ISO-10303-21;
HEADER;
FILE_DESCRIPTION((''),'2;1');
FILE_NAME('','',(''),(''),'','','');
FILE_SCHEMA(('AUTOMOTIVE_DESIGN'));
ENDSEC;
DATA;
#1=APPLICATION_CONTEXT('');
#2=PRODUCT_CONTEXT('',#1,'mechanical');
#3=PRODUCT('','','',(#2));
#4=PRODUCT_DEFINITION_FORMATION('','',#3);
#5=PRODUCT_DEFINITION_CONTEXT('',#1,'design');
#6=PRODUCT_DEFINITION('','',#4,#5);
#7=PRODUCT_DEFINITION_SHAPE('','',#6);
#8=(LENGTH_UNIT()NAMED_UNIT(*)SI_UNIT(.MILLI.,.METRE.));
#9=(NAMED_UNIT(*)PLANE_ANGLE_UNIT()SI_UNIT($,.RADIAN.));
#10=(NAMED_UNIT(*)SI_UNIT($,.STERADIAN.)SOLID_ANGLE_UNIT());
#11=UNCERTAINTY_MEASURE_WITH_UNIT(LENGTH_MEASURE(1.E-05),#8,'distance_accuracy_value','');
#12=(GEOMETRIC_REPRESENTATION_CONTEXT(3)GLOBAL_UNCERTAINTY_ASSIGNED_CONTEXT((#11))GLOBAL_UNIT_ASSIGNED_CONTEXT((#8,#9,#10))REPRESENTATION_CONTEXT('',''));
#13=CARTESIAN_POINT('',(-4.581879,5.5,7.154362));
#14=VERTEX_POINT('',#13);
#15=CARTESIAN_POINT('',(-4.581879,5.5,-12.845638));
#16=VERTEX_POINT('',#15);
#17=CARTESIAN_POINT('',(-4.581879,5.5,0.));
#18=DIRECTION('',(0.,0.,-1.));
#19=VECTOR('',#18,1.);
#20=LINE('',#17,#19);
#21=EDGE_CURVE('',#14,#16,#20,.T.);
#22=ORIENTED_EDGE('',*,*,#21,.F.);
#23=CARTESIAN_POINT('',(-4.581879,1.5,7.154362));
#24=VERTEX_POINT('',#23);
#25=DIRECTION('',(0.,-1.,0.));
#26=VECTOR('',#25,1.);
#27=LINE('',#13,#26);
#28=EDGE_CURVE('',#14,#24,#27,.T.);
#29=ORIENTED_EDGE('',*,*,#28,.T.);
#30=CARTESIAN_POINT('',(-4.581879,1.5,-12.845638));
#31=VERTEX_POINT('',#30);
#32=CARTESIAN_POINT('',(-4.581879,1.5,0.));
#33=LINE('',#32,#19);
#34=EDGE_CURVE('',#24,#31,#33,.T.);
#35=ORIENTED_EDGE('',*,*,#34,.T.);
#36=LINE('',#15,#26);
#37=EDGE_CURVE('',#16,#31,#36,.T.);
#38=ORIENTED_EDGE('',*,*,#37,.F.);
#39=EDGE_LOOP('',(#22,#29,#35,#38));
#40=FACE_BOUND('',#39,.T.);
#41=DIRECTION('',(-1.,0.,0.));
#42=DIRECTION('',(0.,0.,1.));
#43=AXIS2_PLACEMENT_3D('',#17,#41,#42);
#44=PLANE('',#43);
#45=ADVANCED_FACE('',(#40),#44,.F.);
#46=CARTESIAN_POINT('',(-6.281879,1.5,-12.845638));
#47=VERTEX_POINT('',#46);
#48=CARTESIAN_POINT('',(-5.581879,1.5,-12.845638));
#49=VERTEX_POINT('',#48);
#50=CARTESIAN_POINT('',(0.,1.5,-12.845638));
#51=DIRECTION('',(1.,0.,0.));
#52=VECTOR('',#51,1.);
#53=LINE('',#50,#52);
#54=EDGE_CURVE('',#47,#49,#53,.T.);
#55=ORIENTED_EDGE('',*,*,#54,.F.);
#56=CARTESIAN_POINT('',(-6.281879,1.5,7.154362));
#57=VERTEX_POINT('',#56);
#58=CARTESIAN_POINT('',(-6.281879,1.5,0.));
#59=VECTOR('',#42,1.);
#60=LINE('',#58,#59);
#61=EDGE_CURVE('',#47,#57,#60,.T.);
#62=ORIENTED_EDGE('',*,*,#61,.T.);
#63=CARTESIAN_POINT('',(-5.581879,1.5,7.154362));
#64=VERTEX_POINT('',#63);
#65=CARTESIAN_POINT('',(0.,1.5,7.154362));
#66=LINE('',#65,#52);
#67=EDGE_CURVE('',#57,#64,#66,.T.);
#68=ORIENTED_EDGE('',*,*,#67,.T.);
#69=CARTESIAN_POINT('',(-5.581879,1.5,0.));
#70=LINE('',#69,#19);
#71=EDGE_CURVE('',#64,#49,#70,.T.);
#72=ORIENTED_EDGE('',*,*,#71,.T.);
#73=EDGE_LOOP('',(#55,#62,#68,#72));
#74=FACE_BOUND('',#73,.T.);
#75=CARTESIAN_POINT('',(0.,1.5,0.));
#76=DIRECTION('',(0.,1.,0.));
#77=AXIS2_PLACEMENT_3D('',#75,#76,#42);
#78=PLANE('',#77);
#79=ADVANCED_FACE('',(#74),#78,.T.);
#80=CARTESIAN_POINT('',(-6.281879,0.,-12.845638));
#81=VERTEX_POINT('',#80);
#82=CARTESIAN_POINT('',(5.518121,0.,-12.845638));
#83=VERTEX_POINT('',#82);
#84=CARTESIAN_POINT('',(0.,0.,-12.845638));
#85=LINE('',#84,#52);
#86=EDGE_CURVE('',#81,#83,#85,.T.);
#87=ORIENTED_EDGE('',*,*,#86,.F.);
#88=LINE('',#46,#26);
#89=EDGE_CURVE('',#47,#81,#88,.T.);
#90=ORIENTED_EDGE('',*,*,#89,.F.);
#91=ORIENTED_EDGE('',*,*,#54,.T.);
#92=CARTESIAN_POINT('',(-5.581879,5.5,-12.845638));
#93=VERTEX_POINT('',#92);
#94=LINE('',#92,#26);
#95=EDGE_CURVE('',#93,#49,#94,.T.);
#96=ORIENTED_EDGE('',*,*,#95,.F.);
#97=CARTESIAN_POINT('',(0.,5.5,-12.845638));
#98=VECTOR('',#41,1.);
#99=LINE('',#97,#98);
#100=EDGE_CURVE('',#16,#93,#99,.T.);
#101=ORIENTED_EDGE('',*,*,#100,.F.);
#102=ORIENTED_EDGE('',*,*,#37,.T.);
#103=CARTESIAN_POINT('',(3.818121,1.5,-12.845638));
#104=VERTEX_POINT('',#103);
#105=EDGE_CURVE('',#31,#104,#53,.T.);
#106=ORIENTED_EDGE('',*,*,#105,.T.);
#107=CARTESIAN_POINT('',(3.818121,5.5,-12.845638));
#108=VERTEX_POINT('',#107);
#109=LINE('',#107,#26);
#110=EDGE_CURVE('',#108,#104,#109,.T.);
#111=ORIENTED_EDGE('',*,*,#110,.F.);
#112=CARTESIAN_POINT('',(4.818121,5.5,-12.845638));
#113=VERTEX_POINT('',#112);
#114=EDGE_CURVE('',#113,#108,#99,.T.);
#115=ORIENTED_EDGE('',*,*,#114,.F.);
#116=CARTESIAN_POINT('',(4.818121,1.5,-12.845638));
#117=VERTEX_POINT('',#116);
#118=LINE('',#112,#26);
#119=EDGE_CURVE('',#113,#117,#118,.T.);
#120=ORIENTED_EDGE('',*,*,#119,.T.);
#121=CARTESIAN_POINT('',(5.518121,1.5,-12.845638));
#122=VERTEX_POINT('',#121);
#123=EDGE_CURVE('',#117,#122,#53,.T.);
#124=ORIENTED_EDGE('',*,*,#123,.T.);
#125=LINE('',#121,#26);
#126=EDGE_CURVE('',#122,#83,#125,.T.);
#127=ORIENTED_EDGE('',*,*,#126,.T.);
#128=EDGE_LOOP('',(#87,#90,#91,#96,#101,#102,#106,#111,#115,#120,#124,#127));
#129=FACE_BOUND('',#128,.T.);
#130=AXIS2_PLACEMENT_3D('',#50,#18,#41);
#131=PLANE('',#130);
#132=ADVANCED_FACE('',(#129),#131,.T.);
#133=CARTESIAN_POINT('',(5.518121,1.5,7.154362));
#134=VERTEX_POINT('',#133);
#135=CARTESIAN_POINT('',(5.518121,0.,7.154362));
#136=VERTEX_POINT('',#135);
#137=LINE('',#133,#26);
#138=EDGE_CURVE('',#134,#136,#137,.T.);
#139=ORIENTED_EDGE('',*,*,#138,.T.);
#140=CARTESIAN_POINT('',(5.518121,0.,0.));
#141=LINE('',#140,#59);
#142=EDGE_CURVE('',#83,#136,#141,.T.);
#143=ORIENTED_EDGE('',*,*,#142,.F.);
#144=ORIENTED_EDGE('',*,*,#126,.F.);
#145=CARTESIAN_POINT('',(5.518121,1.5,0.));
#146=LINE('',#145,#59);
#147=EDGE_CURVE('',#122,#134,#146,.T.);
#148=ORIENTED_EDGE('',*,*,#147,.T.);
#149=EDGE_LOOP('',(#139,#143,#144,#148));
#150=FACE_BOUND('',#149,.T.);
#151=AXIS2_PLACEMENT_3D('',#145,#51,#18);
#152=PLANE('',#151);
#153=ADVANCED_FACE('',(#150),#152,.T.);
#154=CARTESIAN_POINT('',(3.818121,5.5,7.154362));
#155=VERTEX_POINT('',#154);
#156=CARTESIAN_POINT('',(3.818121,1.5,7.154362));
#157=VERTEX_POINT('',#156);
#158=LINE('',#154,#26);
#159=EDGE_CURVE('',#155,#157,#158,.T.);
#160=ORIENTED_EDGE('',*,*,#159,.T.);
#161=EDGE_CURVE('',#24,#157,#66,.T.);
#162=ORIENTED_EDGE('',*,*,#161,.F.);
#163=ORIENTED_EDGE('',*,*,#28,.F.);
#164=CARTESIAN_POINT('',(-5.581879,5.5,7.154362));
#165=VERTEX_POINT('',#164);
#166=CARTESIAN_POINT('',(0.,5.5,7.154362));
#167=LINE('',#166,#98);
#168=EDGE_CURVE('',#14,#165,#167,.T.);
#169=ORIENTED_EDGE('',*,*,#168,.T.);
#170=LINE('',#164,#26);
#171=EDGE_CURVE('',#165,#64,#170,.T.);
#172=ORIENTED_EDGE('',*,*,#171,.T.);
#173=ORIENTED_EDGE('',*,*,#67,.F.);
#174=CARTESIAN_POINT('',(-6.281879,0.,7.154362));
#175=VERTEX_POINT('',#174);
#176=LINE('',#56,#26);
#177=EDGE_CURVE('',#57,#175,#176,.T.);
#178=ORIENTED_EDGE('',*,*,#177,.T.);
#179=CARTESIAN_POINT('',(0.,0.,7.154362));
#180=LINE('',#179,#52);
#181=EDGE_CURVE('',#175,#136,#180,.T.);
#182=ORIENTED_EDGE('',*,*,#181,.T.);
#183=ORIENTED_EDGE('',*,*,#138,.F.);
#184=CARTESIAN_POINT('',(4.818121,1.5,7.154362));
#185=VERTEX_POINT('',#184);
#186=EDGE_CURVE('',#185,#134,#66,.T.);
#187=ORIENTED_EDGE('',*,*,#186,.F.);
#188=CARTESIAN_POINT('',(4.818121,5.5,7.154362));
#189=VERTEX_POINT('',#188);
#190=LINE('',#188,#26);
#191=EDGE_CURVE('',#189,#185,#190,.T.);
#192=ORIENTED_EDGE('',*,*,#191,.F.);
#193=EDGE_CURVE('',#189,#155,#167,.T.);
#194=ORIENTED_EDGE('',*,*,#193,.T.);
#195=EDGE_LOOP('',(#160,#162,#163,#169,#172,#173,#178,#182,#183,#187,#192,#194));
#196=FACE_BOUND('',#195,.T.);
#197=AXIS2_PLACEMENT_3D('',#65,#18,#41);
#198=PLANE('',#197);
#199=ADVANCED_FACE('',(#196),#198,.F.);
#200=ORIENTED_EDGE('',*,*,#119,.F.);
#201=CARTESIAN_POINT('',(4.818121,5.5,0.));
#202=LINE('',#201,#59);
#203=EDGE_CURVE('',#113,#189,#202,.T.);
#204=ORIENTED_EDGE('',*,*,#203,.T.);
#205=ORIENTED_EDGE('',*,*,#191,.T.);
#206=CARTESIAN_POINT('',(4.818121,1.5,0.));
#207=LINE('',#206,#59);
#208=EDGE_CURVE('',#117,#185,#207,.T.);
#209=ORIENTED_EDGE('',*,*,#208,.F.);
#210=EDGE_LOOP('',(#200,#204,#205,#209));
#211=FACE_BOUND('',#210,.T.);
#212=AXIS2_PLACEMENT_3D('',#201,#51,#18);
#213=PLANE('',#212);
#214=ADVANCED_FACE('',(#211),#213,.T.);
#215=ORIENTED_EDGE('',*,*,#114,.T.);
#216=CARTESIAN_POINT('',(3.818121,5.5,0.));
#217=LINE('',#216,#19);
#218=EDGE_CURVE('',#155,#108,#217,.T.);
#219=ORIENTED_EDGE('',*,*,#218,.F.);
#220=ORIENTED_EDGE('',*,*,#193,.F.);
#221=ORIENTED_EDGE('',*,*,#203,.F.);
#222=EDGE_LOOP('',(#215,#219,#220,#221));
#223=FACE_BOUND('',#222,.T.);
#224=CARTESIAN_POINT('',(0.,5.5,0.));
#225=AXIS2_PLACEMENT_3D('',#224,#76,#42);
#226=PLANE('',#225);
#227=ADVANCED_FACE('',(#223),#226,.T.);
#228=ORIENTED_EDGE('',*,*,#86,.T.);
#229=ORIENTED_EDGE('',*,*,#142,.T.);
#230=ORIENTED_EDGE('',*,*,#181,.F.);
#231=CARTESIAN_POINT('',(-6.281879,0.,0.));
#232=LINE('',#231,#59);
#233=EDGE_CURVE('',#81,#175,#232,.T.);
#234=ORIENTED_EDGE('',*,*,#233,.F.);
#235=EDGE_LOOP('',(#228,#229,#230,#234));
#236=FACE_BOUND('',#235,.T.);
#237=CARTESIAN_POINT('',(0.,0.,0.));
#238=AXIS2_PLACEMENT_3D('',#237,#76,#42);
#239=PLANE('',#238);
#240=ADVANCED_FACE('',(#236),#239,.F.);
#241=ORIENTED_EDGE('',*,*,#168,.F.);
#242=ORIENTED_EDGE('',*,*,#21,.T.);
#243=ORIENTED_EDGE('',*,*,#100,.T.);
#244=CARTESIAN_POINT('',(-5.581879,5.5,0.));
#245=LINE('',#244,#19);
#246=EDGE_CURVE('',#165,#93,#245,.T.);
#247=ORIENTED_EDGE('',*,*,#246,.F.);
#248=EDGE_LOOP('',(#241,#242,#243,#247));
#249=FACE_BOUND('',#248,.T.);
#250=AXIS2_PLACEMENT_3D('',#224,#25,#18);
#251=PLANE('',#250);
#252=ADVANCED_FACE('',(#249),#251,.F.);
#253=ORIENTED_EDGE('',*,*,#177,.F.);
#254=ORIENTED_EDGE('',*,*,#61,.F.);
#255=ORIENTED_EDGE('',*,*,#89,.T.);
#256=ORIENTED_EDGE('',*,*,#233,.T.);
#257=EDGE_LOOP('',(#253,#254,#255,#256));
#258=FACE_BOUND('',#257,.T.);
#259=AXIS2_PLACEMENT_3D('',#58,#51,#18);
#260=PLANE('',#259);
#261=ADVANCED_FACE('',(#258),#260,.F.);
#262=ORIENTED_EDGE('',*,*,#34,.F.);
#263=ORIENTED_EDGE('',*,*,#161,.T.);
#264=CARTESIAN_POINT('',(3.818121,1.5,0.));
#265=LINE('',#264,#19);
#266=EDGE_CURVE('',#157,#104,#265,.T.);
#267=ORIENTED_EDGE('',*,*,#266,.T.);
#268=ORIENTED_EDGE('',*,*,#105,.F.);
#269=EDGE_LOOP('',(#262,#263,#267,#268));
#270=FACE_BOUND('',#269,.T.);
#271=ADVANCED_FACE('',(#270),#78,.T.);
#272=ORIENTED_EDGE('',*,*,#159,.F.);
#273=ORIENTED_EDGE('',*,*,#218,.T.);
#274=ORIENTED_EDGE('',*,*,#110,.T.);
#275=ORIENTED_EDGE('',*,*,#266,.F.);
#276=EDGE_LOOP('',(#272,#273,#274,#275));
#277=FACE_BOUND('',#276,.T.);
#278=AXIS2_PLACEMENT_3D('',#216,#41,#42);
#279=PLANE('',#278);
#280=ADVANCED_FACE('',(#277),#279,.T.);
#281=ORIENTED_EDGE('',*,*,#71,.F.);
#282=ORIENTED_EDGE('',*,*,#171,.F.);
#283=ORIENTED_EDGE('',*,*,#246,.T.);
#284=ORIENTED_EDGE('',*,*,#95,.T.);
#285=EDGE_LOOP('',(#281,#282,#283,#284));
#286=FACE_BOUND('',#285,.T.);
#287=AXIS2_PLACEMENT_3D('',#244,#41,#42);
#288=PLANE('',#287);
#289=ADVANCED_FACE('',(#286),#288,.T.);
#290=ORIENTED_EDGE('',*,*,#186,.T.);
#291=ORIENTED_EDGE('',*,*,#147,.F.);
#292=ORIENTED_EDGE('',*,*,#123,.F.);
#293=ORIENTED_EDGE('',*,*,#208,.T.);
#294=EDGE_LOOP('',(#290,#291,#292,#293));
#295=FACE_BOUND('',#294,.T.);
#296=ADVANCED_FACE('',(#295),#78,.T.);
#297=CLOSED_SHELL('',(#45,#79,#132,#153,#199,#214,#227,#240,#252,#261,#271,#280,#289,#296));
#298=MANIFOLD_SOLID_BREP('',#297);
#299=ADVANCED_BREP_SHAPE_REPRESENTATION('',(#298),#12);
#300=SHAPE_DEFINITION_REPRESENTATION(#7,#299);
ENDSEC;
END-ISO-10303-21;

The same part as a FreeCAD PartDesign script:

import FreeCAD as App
import Part
import Sketcher

doc = App.newDocument("Part")
body = doc.addObject("PartDesign::Body", "Body")

# Sketch on XZ plane
sketch1 = body.newObject("Sketcher::SketchObject", "Sketch")
sketch1.AttachmentSupport = (doc.getObject("XZ_Plane"), [""])
sketch1.MapMode = "FlatFace"
sketch1.addGeometry([
    Part.LineSegment(App.Vector(-6, -13, 0), App.Vector(-6, 7, 0)),
    Part.LineSegment(App.Vector(-6, 7, 0), App.Vector(6, 7, 0)),
    Part.LineSegment(App.Vector(6, 7, 0), App.Vector(6, -13, 0)),
    Part.LineSegment(App.Vector(6, -13, 0), App.Vector(-6, -13, 0)),
], False)
sketch1.addConstraint([
    Sketcher.Constraint("Coincident", 0, 2, 1, 1),
    Sketcher.Constraint("Coincident", 1, 2, 2, 1),
    Sketcher.Constraint("Coincident", 2, 2, 3, 1),
    Sketcher.Constraint("Coincident", 3, 2, 0, 1),
    Sketcher.Constraint("Vertical", 0),
    Sketcher.Constraint("Horizontal", 1),
    Sketcher.Constraint("Vertical", 2),
    Sketcher.Constraint("Horizontal", 3),
    Sketcher.Constraint("DistanceY", 0, 1, 0, 2, 20.0),
    Sketcher.Constraint("DistanceX", 1, 1, 1, 2, 11.8),
    Sketcher.Constraint("DistanceX", 0, 2, -1, 1, 6.281879),
    Sketcher.Constraint("DistanceY", -1, 1, 0, 2, 7.154362),
])
pad1 = body.newObject("PartDesign::Pad", "Pad")
pad1.Profile = sketch1
pad1.Length = 1.5
pad1.Reversed = True

# Sketch on XZ plane
sketch2 = body.newObject("Sketcher::SketchObject", "Sketch001")
sketch2.AttachmentSupport = (doc.getObject("XZ_Plane"), [""])
sketch2.MapMode = "FlatFace"
sketch2.AttachmentOffset = App.Placement(App.Vector(0, 0, -1.5), App.Rotation())
sketch2.addGeometry([
    Part.LineSegment(App.Vector(-5.6, -12.8, 0), App.Vector(-5.6, 7.2, 0)),  # 0
    Part.LineSegment(App.Vector(-5.6, 7.2, 0), App.Vector(-4.6, 7.2, 0)),  # 1
    Part.LineSegment(App.Vector(-4.6, 7.2, 0), App.Vector(-4.6, -12.8, 0)),  # 2
    Part.LineSegment(App.Vector(-4.6, -12.8, 0), App.Vector(-5.6, -12.8, 0)),  # 3
    Part.LineSegment(App.Vector(3.8, -12.8, 0), App.Vector(3.8, 7.2, 0)),  # 4
    Part.LineSegment(App.Vector(3.8, 7.2, 0), App.Vector(4.8, 7.2, 0)),  # 5
    Part.LineSegment(App.Vector(4.8, 7.2, 0), App.Vector(4.8, -12.8, 0)),  # 6
    Part.LineSegment(App.Vector(4.8, -12.8, 0), App.Vector(3.8, -12.8, 0)),  # 7
], False)
sketch2.addConstraint([
    Sketcher.Constraint("Coincident", 0, 2, 1, 1),
    Sketcher.Constraint("Coincident", 1, 2, 2, 1),
    Sketcher.Constraint("Coincident", 2, 2, 3, 1),
    Sketcher.Constraint("Coincident", 3, 2, 0, 1),
    Sketcher.Constraint("Coincident", 4, 2, 5, 1),
    Sketcher.Constraint("Coincident", 5, 2, 6, 1),
    Sketcher.Constraint("Coincident", 6, 2, 7, 1),
    Sketcher.Constraint("Coincident", 7, 2, 4, 1),
    Sketcher.Constraint("Vertical", 0),
    Sketcher.Constraint("Horizontal", 1),
    Sketcher.Constraint("Vertical", 2),
    Sketcher.Constraint("Horizontal", 3),
    Sketcher.Constraint("Vertical", 4),
    Sketcher.Constraint("Horizontal", 5),
    Sketcher.Constraint("Vertical", 6),
    Sketcher.Constraint("Horizontal", 7),
    Sketcher.Constraint("Horizontal", 1, 2, 4, 2),
    Sketcher.Constraint("Horizontal", 3, 2, 6, 2),
    Sketcher.Constraint("Equal", 3, 5),
    Sketcher.Constraint("DistanceX", 1, 1, 1, 2, 1.0),
    Sketcher.Constraint("DistanceY", 0, 1, 0, 2, 20.0),
    Sketcher.Constraint("DistanceX", 1, 2, 4, 2, 8.4),
    Sketcher.Constraint("DistanceX", 0, 2, -1, 1, 5.581879),
    Sketcher.Constraint("DistanceY", -1, 1, 0, 2, 7.154362),
])
pad2 = body.newObject("PartDesign::Pad", "Pad001")
pad2.Profile = sketch2
pad2.Length = 4
pad2.Reversed = True

doc.recompute()
